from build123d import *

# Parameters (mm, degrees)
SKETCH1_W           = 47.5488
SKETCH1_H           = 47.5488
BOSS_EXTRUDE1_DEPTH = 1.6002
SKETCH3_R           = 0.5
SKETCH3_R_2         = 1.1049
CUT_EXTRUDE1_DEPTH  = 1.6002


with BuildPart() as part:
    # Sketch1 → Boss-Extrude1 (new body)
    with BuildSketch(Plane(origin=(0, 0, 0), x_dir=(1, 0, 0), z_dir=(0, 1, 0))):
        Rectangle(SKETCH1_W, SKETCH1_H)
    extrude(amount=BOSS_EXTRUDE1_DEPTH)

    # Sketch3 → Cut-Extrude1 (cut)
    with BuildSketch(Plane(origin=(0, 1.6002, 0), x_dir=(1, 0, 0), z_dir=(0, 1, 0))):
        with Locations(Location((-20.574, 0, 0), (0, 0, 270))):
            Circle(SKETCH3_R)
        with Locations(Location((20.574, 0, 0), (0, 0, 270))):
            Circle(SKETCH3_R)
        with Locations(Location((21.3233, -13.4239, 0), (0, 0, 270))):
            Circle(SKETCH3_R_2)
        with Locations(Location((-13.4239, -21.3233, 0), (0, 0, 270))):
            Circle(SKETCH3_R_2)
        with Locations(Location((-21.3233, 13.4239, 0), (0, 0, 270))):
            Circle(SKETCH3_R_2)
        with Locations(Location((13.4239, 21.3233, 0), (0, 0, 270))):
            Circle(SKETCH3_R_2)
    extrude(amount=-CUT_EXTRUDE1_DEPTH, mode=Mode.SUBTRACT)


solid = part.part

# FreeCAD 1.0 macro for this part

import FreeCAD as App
import Part
import Sketcher

V = App.Vector
Q = App.Units.Quantity

doc = App.newDocument("Part")
body = doc.addObject("PartDesign::Body", "Body")

sketch1 = doc.addObject("Sketcher::SketchObject", "Sketch")
body.addObject(sketch1)
sketch1.AttachmentSupport = (doc.XZ_Plane, [""])
sketch1.MapMode = "FlatFace"
sketch1.addGeometry([
    Part.LineSegment(V(-23.7744, -23.7744, 0), V(-23.7744, 23.7744, 0)),
    Part.LineSegment(V(-23.7744, 23.7744, 0), V(23.7744, 23.7744, 0)),
    Part.LineSegment(V(23.7744, 23.7744, 0), V(23.7744, -23.7744, 0)),
    Part.LineSegment(V(23.7744, -23.7744, 0), V(-23.7744, -23.7744, 0)),
], False)
sketch1.addConstraint([
    Sketcher.Constraint("Coincident", 0, 2, 1, 1),
    Sketcher.Constraint("Coincident", 1, 2, 2, 1),
    Sketcher.Constraint("Coincident", 2, 2, 3, 1),
    Sketcher.Constraint("Coincident", 3, 2, 0, 1),
    Sketcher.Constraint("Vertical", 0),
    Sketcher.Constraint("Horizontal", 1),
    Sketcher.Constraint("Vertical", 2),
    Sketcher.Constraint("Horizontal", 3),
    Sketcher.Constraint("Symmetric", 0, 2, 2, 2, -1, 1),
    Sketcher.Constraint("Equal", 3, 0),
    Sketcher.Constraint("DistanceX", 1, 1, 1, 2, Q("1.872 in")),
])
pad1 = doc.addObject("PartDesign::Pad", "Pad")
body.addObject(pad1)
pad1.Profile = sketch1
pad1.Length = Q("0.063 in")
pad1.Reversed = True

sketch2 = doc.addObject("Sketcher::SketchObject", "Sketch001")
body.addObject(sketch2)
sketch2.AttachmentSupport = (doc.XZ_Plane, [""])
sketch2.MapMode = "FlatFace"
sketch2.AttachmentOffset = App.Placement(V(0, 0, -0.063 * 25.4), App.Rotation())
sketch2.addGeometry([
    Part.Circle(V(-20.574, 0, 0), V(0, 0, 1), 0.5),
    Part.Circle(V(20.574, 0, 0), V(0, 0, 1), 0.5),
    Part.Circle(V(21.3233, 13.4239, 0), V(0, 0, 1), 1.1049),
    Part.Circle(V(-13.4239, 21.3233, 0), V(0, 0, 1), 1.1049),
    Part.Circle(V(-21.3233, -13.4239, 0), V(0, 0, 1), 1.1049),
    Part.Circle(V(13.4239, -21.3233, 0), V(0, 0, 1), 1.1049),
], False)
sketch2.addConstraint([
    Sketcher.Constraint("Equal", 0, 1),
    Sketcher.Constraint("Equal", 2, 3),
    Sketcher.Constraint("Equal", 3, 4),
    Sketcher.Constraint("Equal", 4, 5),
    Sketcher.Constraint("Symmetric", 0, 3, 1, 3, -1, 1),
    Sketcher.Constraint("Symmetric", 2, 3, 4, 3, -1, 1),
    Sketcher.Constraint("Symmetric", 3, 3, 5, 3, -1, 1),
    Sketcher.Constraint("PointOnObject", 0, 3, -1),
    Sketcher.Constraint("Diameter", 2, Q("0.087 in")),
    Sketcher.Constraint("Diameter", 0, Q("1 mm")),
    Sketcher.Constraint("DistanceX", 0, 3, -1, 1, Q("0.81 in")),
    Sketcher.Constraint("DistanceX", 3, 3, 2, 3, Q("1.368 in")),
    Sketcher.Constraint("DistanceY", 2, 3, 3, 3, Q("0.311 in")),
    Sketcher.Constraint("DistanceX", 4, 3, 3, 3, Q("0.311 in")),
    Sketcher.Constraint("DistanceY", 4, 3, 3, 3, Q("1.368 in")),
])
pocket1 = doc.addObject("PartDesign::Pocket", "Pocket")
body.addObject(pocket1)
pocket1.Profile = sketch2
pocket1.Length = Q("0.063 in")
pocket1.Reversed = True

doc.recompute()
